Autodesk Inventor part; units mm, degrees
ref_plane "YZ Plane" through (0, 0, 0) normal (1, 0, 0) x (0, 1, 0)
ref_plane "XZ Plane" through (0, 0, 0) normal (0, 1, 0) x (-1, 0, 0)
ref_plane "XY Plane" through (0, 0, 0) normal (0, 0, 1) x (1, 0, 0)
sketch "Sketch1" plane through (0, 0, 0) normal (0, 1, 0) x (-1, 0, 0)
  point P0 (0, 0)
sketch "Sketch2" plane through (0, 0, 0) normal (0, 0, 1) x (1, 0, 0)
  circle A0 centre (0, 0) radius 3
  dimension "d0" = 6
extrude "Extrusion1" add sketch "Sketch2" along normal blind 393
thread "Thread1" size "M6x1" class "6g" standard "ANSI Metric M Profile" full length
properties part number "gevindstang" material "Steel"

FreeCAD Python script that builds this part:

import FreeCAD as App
import Part
import Sketcher

doc = App.newDocument("Part")
body = doc.addObject("PartDesign::Body", "Body")

# Sketch on XY plane
sketch1 = body.newObject("Sketcher::SketchObject", "Sketch")
sketch1.AttachmentSupport = (doc.getObject("XY_Plane"), [""])
sketch1.MapMode = "FlatFace"
sketch1.addGeometry(Part.Circle(App.Vector(0, 0, 0), App.Vector(0, 0, 1), 3), False)
sketch1.addConstraint([
    Sketcher.Constraint("Coincident", 0, 3, -1, 1),
    Sketcher.Constraint("Diameter", 0, 6.0),
])
pad1 = body.newObject("PartDesign::Pad", "Pad")
pad1.Profile = sketch1
pad1.Length = 393

doc.recompute()
